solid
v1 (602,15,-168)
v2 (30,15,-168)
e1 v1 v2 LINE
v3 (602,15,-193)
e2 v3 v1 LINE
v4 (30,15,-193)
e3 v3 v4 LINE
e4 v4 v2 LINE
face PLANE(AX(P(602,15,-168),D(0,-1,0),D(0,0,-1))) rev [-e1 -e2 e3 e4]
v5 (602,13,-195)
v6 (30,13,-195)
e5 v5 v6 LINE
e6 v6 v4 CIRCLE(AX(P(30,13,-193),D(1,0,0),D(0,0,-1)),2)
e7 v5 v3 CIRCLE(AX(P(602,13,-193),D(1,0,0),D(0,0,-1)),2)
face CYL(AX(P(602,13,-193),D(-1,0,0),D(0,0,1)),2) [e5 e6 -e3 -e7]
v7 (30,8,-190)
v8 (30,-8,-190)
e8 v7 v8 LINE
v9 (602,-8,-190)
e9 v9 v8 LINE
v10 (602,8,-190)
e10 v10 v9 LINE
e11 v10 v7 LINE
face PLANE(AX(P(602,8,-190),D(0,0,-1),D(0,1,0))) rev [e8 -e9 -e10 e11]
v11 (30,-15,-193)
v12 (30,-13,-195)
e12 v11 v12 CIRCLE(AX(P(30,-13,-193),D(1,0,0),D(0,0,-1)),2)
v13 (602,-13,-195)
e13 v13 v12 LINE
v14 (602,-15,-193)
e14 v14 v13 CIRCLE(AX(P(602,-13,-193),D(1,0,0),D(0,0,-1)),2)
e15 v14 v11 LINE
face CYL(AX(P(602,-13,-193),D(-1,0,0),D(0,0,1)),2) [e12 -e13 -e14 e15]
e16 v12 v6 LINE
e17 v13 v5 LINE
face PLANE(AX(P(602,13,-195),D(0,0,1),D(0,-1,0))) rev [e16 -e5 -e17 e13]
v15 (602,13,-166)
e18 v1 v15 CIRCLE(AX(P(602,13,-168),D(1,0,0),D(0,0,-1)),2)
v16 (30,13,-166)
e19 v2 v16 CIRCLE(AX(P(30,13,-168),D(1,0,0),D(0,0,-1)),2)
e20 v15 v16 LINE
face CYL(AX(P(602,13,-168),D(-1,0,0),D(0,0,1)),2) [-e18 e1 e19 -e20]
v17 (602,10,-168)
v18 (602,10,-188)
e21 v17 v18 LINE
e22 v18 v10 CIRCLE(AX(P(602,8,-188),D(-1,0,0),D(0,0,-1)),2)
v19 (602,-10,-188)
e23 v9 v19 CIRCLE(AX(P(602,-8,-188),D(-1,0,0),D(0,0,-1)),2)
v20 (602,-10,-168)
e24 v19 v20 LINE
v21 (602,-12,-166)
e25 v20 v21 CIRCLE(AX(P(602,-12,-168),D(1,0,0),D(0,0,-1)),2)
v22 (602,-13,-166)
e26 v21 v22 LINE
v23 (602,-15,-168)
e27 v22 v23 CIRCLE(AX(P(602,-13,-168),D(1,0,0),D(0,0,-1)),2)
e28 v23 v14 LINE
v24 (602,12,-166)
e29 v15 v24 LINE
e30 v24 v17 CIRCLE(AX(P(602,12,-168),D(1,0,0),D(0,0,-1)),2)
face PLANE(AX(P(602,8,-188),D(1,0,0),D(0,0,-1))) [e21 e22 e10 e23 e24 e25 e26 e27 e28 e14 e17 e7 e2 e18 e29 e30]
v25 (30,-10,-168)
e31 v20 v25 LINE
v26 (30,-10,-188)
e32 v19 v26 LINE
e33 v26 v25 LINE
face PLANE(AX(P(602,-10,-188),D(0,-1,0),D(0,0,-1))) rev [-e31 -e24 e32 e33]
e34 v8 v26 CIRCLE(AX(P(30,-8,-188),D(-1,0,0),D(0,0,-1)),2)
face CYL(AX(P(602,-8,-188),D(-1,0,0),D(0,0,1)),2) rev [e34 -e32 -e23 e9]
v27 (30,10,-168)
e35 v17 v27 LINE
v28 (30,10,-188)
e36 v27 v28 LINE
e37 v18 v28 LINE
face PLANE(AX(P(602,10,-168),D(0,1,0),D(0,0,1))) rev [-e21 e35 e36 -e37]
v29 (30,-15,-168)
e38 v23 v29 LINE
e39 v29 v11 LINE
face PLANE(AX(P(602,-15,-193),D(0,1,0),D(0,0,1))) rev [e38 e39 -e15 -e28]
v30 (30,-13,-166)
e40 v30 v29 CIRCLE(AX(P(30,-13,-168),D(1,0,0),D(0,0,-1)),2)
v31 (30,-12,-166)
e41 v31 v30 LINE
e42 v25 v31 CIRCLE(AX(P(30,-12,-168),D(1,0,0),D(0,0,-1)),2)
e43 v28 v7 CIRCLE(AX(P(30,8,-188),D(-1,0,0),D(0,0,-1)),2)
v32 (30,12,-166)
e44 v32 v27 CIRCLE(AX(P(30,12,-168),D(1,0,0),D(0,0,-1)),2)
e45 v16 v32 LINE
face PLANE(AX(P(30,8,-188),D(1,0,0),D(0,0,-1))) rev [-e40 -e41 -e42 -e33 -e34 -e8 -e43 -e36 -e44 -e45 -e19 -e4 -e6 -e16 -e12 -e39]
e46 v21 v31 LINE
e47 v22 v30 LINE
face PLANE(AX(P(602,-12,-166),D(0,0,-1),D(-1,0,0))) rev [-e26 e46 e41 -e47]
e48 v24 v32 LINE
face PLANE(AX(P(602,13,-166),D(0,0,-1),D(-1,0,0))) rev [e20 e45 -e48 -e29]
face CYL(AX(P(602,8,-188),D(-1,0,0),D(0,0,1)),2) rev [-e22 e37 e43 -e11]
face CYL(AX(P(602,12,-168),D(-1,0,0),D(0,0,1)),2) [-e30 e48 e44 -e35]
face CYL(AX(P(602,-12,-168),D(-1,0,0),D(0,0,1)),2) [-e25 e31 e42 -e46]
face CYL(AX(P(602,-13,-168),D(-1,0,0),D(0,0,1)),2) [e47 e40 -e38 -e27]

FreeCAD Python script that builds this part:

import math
import FreeCAD as App
import Part
import Sketcher

V = App.Vector

doc = App.newDocument("Part")
body = doc.addObject("PartDesign::Body", "Body")

sketch1 = body.newObject("Sketcher::SketchObject", "Sketch")
sketch1.AttachmentSupport = (doc.getObject("YZ_Plane"), [""])
sketch1.MapMode = "FlatFace"
sketch1.AttachmentOffset = App.Placement(V(0, 0, 30), App.Rotation())
sketch1.addGeometry([
    Part.LineSegment(V(-13, -195, 0), V(13, -195, 0)),
    Part.ArcOfCircle(Part.Circle(V(13, -193, 0), V(0, 0, 1), 2), math.radians(-90), math.radians(0)),
    Part.LineSegment(V(15, -193, 0), V(15, -168, 0)),
    Part.ArcOfCircle(Part.Circle(V(13, -168, 0), V(0, 0, 1), 2), math.radians(0), math.radians(90)),
    Part.LineSegment(V(13, -166, 0), V(12, -166, 0)),
    Part.ArcOfCircle(Part.Circle(V(12, -168, 0), V(0, 0, 1), 2), math.radians(90), math.radians(180)),
    Part.LineSegment(V(10, -168, 0), V(10, -188, 0)),
    Part.ArcOfCircle(Part.Circle(V(8, -188, 0), V(0, 0, 1), 2), math.radians(-90), math.radians(0)),
    Part.LineSegment(V(8, -190, 0), V(-8, -190, 0)),
    Part.ArcOfCircle(Part.Circle(V(-8, -188, 0), V(0, 0, 1), 2), math.radians(-180), math.radians(-90)),
    Part.LineSegment(V(-10, -188, 0), V(-10, -168, 0)),
    Part.ArcOfCircle(Part.Circle(V(-12, -168, 0), V(0, 0, 1), 2), math.radians(0), math.radians(90)),
    Part.LineSegment(V(-12, -166, 0), V(-13, -166, 0)),
    Part.ArcOfCircle(Part.Circle(V(-13, -168, 0), V(0, 0, 1), 2), math.radians(90), math.radians(180)),
    Part.LineSegment(V(-15, -168, 0), V(-15, -193, 0)),
    Part.ArcOfCircle(Part.Circle(V(-13, -193, 0), V(0, 0, 1), 2), math.radians(-180), math.radians(-90)),
], False)
sketch1.addConstraint([
    Sketcher.Constraint("Tangent", 0, 2, 1, 1),
    Sketcher.Constraint("Tangent", 1, 2, 2, 1),
    Sketcher.Constraint("Tangent", 2, 2, 3, 1),
    Sketcher.Constraint("Tangent", 3, 2, 4, 1),
    Sketcher.Constraint("Tangent", 4, 2, 5, 1),
    Sketcher.Constraint("Tangent", 5, 2, 6, 1),
    Sketcher.Constraint("Tangent", 6, 2, 7, 2),
    Sketcher.Constraint("Tangent", 7, 1, 8, 1),
    Sketcher.Constraint("Tangent", 8, 2, 9, 2),
    Sketcher.Constraint("Tangent", 9, 1, 10, 1),
    Sketcher.Constraint("Tangent", 10, 2, 11, 1),
    Sketcher.Constraint("Tangent", 11, 2, 12, 1),
    Sketcher.Constraint("Tangent", 12, 2, 13, 1),
    Sketcher.Constraint("Tangent", 13, 2, 14, 1),
    Sketcher.Constraint("Tangent", 14, 2, 15, 1),
    Sketcher.Constraint("Tangent", 15, 2, 0, 1),
    Sketcher.Constraint("Horizontal", 0),
    Sketcher.Constraint("Vertical", 2),
    Sketcher.Constraint("Horizontal", 4),
    Sketcher.Constraint("Vertical", 6),
    Sketcher.Constraint("Horizontal", 8),
    Sketcher.Constraint("Vertical", 10),
    Sketcher.Constraint("Horizontal", 12),
    Sketcher.Constraint("Vertical", 14),
    Sketcher.Constraint("Equal", 1, 3),
    Sketcher.Constraint("Equal", 3, 5),
    Sketcher.Constraint("Equal", 5, 7),
    Sketcher.Constraint("Equal", 7, 9),
    Sketcher.Constraint("Equal", 9, 11),
    Sketcher.Constraint("Equal", 11, 13),
    Sketcher.Constraint("Equal", 13, 15),
    Sketcher.Constraint("Symmetric", 5, 3, 11, 3, -2),
    Sketcher.Constraint("Equal", 4, 12),
    Sketcher.Constraint("Radius", 1, 2.0),
    Sketcher.Constraint("DistanceX", 0, 1, 0, 2, 26.0),
    Sketcher.Constraint("DistanceX", 4, 2, 4, 1, 1.0),
    Sketcher.Constraint("DistanceY", 2, 1, 2, 2, 25.0),
    Sketcher.Constraint("DistanceY", 6, 2, 6, 1, 20.0),
    Sketcher.Constraint("DistanceY", 1, 3, -1, 1, 193.0),
])
pad1 = body.newObject("PartDesign::Pad", "Pad")
pad1.Profile = sketch1
pad1.Length = 572

doc.recompute()
